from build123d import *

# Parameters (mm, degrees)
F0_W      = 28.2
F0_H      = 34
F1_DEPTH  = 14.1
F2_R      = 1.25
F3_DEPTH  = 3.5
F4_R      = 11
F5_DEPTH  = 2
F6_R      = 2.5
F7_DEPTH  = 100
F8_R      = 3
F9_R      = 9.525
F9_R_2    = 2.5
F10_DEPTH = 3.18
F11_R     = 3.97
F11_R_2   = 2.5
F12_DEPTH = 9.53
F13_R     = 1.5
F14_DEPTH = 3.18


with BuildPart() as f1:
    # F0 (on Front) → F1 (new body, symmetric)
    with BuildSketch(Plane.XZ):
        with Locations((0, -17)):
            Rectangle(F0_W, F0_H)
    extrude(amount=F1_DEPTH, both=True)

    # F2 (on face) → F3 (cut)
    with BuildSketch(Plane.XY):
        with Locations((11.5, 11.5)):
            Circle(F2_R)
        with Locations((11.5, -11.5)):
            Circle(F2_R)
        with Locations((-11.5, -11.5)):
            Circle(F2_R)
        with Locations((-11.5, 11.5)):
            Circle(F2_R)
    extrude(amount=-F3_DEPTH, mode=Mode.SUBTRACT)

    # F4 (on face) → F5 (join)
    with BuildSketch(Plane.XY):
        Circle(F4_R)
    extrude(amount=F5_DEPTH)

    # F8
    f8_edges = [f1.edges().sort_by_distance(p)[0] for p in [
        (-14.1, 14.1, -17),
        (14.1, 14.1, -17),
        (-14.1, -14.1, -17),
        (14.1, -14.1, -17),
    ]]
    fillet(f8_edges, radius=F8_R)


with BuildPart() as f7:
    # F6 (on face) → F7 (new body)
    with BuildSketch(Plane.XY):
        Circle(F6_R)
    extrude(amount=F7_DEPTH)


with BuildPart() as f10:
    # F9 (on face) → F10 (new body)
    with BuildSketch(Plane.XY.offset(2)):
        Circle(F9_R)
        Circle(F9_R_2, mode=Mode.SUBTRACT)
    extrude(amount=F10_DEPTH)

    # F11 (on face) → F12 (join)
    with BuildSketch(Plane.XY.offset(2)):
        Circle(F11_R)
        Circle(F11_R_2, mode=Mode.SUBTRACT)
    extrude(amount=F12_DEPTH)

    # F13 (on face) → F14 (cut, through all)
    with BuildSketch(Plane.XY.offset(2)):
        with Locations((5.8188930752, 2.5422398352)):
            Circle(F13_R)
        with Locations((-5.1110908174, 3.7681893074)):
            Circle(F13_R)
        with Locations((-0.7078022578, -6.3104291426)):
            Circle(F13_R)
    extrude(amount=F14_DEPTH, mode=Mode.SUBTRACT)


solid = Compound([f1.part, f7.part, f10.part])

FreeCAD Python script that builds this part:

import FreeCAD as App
import Part
import Sketcher


def edges_at(feature, points):
    """Names of the edges that pass closest to the given points."""
    edges = feature.Shape.Edges
    near = lambda p: min(range(len(edges)), key=lambda i: edges[i].distToShape(Part.Vertex(*p))[0])
    return sorted({f"Edge{near(p) + 1}" for p in points})


def add_polygon(sketch, points):
    """Adds a closed chain of lines whose ends are joined by coincident constraints."""
    first, n = sketch.GeometryCount, len(points)
    for a, b in zip(points, points[1:] + points[:1]):
        sketch.addGeometry(Part.LineSegment(App.Vector(*a, 0), App.Vector(*b, 0)), False)
    for i in range(n):
        sketch.addConstraint(Sketcher.Constraint("Coincident", first + i, 2, first + (i + 1) % n, 1))

doc = App.newDocument("Part")
body = doc.addObject("PartDesign::Body", "Body")

# Sketch on XZ plane
sketch1 = doc.addObject("Sketcher::SketchObject", "Sketch")
body.addObject(sketch1)
sketch1.AttachmentSupport = (doc.XZ_Plane, [""])
sketch1.MapMode = "FlatFace"
add_polygon(sketch1, [(-14, 0), (-14, -34), (14, -34), (14, 0)])  # lines 0-3
sketch1.addConstraint(Sketcher.Constraint("Vertical", 0))
sketch1.addConstraint(Sketcher.Constraint("Horizontal", 1))
sketch1.addConstraint(Sketcher.Constraint("Vertical", 2))
sketch1.addConstraint(Sketcher.Constraint("Horizontal", 3))
sketch1.addConstraint(Sketcher.Constraint("Symmetric", 2, 2, 3, 2, -1, 1))
sketch1.addConstraint(Sketcher.Constraint("DistanceY", 0, 2, 0, 1, 34.0))
sketch1.addConstraint(Sketcher.Constraint("DistanceX", 1, 1, 1, 2, 28.2))
pad1 = doc.addObject("PartDesign::Pad", "Pad")
body.addObject(pad1)
pad1.Profile = sketch1
pad1.Length = 28.2
pad1.Midplane = True

# Sketch on XY plane
sketch2 = doc.addObject("Sketcher::SketchObject", "Sketch001")
body.addObject(sketch2)
sketch2.AttachmentSupport = (doc.XY_Plane, [""])
sketch2.MapMode = "FlatFace"
sketch2.addGeometry(Part.Circle(App.Vector(11.5, 11.5, 0), App.Vector(0, 0, 1), 1.2), False)
sketch2.addGeometry(Part.Circle(App.Vector(11.5, -11.5, 0), App.Vector(0, 0, 1), 1.2), False)
sketch2.addGeometry(Part.Circle(App.Vector(-11.5, -11.5, 0), App.Vector(0, 0, 1), 1.2), False)
sketch2.addGeometry(Part.Circle(App.Vector(-11.5, 11.5, 0), App.Vector(0, 0, 1), 1.2), False)
sketch2.addConstraint(Sketcher.Constraint("Equal", 0, 1))
sketch2.addConstraint(Sketcher.Constraint("Equal", 1, 2))
sketch2.addConstraint(Sketcher.Constraint("Equal", 2, 3))
sketch2.addConstraint(Sketcher.Constraint("Symmetric", 0, 3, 2, 3, -1, 1))
sketch2.addConstraint(Sketcher.Constraint("Symmetric", 1, 3, 3, 3, -1, 1))
sketch2.addConstraint(Sketcher.Constraint("Symmetric", 1, 3, 2, 3, -2))
sketch2.addConstraint(Sketcher.Constraint("Diameter", 0, 2.5))
sketch2.addConstraint(Sketcher.Constraint("DistanceY", 1, 3, 0, 3, 23.0))
sketch2.addConstraint(Sketcher.Constraint("DistanceX", 2, 3, 1, 3, 23.0))
pocket1 = doc.addObject("PartDesign::Pocket", "Pocket")
body.addObject(pocket1)
pocket1.Profile = sketch2
pocket1.Length = 3.5

# Sketch on XY plane
sketch3 = doc.addObject("Sketcher::SketchObject", "Sketch002")
body.addObject(sketch3)
sketch3.AttachmentSupport = (doc.XY_Plane, [""])
sketch3.MapMode = "FlatFace"
sketch3.addGeometry(Part.Circle(App.Vector(0, 0, 0), App.Vector(0, 0, 1), 11), False)
sketch3.addConstraint(Sketcher.Constraint("Coincident", 0, 3, -1, 1))
sketch3.addConstraint(Sketcher.Constraint("Diameter", 0, 22.0))
pad2 = doc.addObject("PartDesign::Pad", "Pad001")
body.addObject(pad2)
pad2.Profile = sketch3
pad2.Length = 2
doc.recompute()

fillet = doc.addObject("PartDesign::Fillet", "Fillet")
body.addObject(fillet)
fillet.Base = (pad2, edges_at(pad2, [
    (-14.1, 14.1, -17),
    (14.1, 14.1, -17),
    (-14.1, -14.1, -17),
    (14.1, -14.1, -17),
]))
fillet.Radius = 3
body2 = doc.addObject("PartDesign::Body", "Body001")

# Sketch on XY plane
sketch4 = doc.addObject("Sketcher::SketchObject", "Sketch003")
body2.addObject(sketch4)
sketch4.AttachmentSupport = (doc.getObject("XY_Plane001"), [""])
sketch4.MapMode = "FlatFace"
sketch4.addGeometry(Part.Circle(App.Vector(0, 0, 0), App.Vector(0, 0, 1), 2.5), False)
sketch4.addConstraint(Sketcher.Constraint("Coincident", 0, 3, -1, 1))
sketch4.addConstraint(Sketcher.Constraint("Diameter", 0, 5.0))
pad3 = doc.addObject("PartDesign::Pad", "Pad002")
body2.addObject(pad3)
pad3.Profile = sketch4
pad3.Length = 100
body3 = doc.addObject("PartDesign::Body", "Body002")

# Sketch on XY plane
sketch5 = doc.addObject("Sketcher::SketchObject", "Sketch004")
body3.addObject(sketch5)
sketch5.AttachmentSupport = (doc.getObject("XY_Plane002"), [""])
sketch5.MapMode = "FlatFace"
sketch5.AttachmentOffset = App.Placement(App.Vector(0, 0, 2), App.Rotation())
sketch5.addGeometry(Part.Circle(App.Vector(0, 0, 0), App.Vector(0, 0, 1), 9.5), False)
sketch5.addGeometry(Part.Circle(App.Vector(0, 0, 0), App.Vector(0, 0, 1), 2.5), False)
sketch5.addConstraint(Sketcher.Constraint("Coincident", 0, 3, -1, 1))
sketch5.addConstraint(Sketcher.Constraint("Coincident", 1, 3, -1, 1))
sketch5.addConstraint(Sketcher.Constraint("Diameter", 1, 5.0))
sketch5.addConstraint(Sketcher.Constraint("Diameter", 0, 19.05))
pad4 = doc.addObject("PartDesign::Pad", "Pad003")
body3.addObject(pad4)
pad4.Profile = sketch5
pad4.Length = 3.18

# Sketch on XY plane
sketch6 = doc.addObject("Sketcher::SketchObject", "Sketch005")
body3.addObject(sketch6)
sketch6.AttachmentSupport = (doc.getObject("XY_Plane002"), [""])
sketch6.MapMode = "FlatFace"
sketch6.AttachmentOffset = App.Placement(App.Vector(0, 0, 2), App.Rotation())
sketch6.addGeometry(Part.Circle(App.Vector(0, 0, 0), App.Vector(0, 0, 1), 4), False)
sketch6.addGeometry(Part.Circle(App.Vector(0, 0, 0), App.Vector(0, 0, 1), 2.5), False)
sketch6.addConstraint(Sketcher.Constraint("Coincident", 0, 3, -1, 1))
sketch6.addConstraint(Sketcher.Constraint("Coincident", 1, 3, -1, 1))
sketch6.addConstraint(Sketcher.Constraint("Diameter", 1, 5.0))
sketch6.addConstraint(Sketcher.Constraint("Diameter", 0, 7.94))
pad5 = doc.addObject("PartDesign::Pad", "Pad004")
body3.addObject(pad5)
pad5.Profile = sketch6
pad5.Length = 9.53

# Sketch on XY plane
sketch7 = doc.addObject("Sketcher::SketchObject", "Sketch006")
body3.addObject(sketch7)
sketch7.AttachmentSupport = (doc.getObject("XY_Plane002"), [""])
sketch7.MapMode = "FlatFace"
sketch7.AttachmentOffset = App.Placement(App.Vector(0, 0, 2), App.Rotation())
sketch7.addGeometry(Part.Circle(App.Vector(5.8, 2.5, 0), App.Vector(0, 0, 1), 1.5), False)
sketch7.addGeometry(Part.Circle(App.Vector(-5.1, 3.8, 0), App.Vector(0, 0, 1), 1.5), False)
sketch7.addGeometry(Part.Circle(App.Vector(-0.7, -6.3, 0), App.Vector(0, 0, 1), 1.5), False)
sketch7.addConstraint(Sketcher.Constraint("Equal", 0, 1))
sketch7.addConstraint(Sketcher.Constraint("Equal", 1, 2))
sketch7.addConstraint(Sketcher.Constraint("Diameter", 0, 3.0))
sketch7.addConstraint(Sketcher.Constraint("DistanceY", -1, 1, 0, 3, 2.54224))
sketch7.addConstraint(Sketcher.Constraint("DistanceX", 1, 3, -1, 1, 5.111091))
sketch7.addConstraint(Sketcher.Constraint("DistanceY", -1, 1, 1, 3, 3.768189))
sketch7.addConstraint(Sketcher.Constraint("DistanceY", 2, 3, -1, 1, 6.310429))
sketch7.addConstraint(Sketcher.Constraint("DistanceX", 1, 3, 2, 3, 4.403289))
sketch7.addConstraint(Sketcher.Constraint("DistanceX", -1, 1, 0, 3, 5.818893))
pocket2 = doc.addObject("PartDesign::Pocket", "Pocket001")
body3.addObject(pocket2)
pocket2.Profile = sketch7
pocket2.Type = "ThroughAll"
pocket2.Reversed = True

doc.recompute()
